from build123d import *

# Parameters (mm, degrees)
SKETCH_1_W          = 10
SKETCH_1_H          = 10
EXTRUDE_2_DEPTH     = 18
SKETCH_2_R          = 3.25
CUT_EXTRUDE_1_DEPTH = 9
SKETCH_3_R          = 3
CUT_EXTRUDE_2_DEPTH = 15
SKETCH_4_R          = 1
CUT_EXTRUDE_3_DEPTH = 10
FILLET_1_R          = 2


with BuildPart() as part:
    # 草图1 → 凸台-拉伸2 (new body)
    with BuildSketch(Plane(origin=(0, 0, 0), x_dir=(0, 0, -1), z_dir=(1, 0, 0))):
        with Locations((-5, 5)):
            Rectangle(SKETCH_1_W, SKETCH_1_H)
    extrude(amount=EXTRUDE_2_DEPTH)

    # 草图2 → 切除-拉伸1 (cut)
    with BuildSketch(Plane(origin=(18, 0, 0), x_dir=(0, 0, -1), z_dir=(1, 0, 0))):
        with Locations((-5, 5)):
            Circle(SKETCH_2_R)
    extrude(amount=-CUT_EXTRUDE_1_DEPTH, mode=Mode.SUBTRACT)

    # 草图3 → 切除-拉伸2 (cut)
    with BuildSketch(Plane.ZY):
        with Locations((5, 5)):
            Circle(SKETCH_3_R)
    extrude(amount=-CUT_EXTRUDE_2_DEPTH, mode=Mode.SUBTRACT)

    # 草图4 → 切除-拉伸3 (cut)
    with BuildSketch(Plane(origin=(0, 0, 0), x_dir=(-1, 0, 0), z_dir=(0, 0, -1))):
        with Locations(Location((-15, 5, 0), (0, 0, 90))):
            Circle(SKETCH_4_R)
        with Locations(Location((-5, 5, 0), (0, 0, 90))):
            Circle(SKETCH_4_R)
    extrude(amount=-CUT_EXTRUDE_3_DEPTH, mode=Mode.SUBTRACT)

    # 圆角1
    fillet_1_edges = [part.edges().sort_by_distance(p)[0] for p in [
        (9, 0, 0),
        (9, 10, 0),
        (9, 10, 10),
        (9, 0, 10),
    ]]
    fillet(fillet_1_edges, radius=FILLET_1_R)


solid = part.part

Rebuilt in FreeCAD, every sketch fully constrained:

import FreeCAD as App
import Part
import Sketcher
Q = App.Units.Quantity


def edges_at(feature, points):
    """Names of the edges that pass closest to the given points."""
    edges = feature.Shape.Edges
    near = lambda p: min(range(len(edges)), key=lambda i: edges[i].distToShape(Part.Vertex(*p))[0])
    return sorted({f"Edge{near(p) + 1}" for p in points})


def add_polygon(sketch, points):
    """Adds a closed chain of lines whose ends are joined by coincident constraints."""
    first, n = sketch.GeometryCount, len(points)
    for a, b in zip(points, points[1:] + points[:1]):
        sketch.addGeometry(Part.LineSegment(App.Vector(*a, 0), App.Vector(*b, 0)), False)
    for i in range(n):
        sketch.addConstraint(Sketcher.Constraint("Coincident", first + i, 2, first + (i + 1) % n, 1))

doc = App.newDocument("Part")
params = doc.addObject("Spreadsheet::Sheet", "Params")
for row, (alias, value) in enumerate([
    ("sketch1_width", "10 mm"),
    ("pad1_length", "18 mm"),
    ("sketch2_diameter", "6.5 mm"),
    ("pocket1_length", "9 mm"),
    ("sketch3_diameter", "6 mm"),
    ("pocket2_length", "15 mm"),
    ("sketch4_diameter", "2 mm"),
    ("pocket3_length", "10 mm"),
    ("fillet_radius", "2 mm"),
], start=1):
    params.set(f"A{row}", alias)
    params.set(f"B{row}", "=" + value)
    params.setAlias(f"B{row}", alias)

body = doc.addObject("PartDesign::Body", "Body")

# Sketch on YZ plane
sketch1 = body.newObject("Sketcher::SketchObject", "Sketch")
sketch1.AttachmentSupport = (doc.getObject("YZ_Plane"), [""])
sketch1.MapMode = "FlatFace"
add_polygon(sketch1, [(10, 10), (0, 10), (0, 0), (10, 0)])  # lines 0-3
sketch1.addConstraint([
    Sketcher.Constraint("Horizontal", 0),
    Sketcher.Constraint("Vertical", 1),
    Sketcher.Constraint("Horizontal", 2),
    Sketcher.Constraint("Vertical", 3),
    Sketcher.Constraint("Coincident", 1, 2, -1, 1),
    Sketcher.Constraint("Equal", 2, 1),
    Sketcher.Constraint("DistanceX", 0, 2, 0, 1, Q("10 mm")),
])
sketch1.setExpression("Constraints[10]", "Params.sketch1_width")
pad1 = body.newObject("PartDesign::Pad", "Pad")
pad1.Profile = sketch1
pad1.setExpression("Length", "Params.pad1_length")

# Sketch on YZ plane
sketch2 = body.newObject("Sketcher::SketchObject", "Sketch001")
sketch2.AttachmentSupport = (doc.getObject("YZ_Plane"), [""])
sketch2.MapMode = "FlatFace"
sketch2.AttachmentOffset = App.Placement(App.Vector(0, 0, 18), App.Rotation())
sketch2.addGeometry(Part.Circle(App.Vector(5, 5, 0), App.Vector(0, 0, 1), 3.2), False)
sketch2.addConstraint([
    Sketcher.Constraint("Diameter", 0, Q("6.5 mm")),
    Sketcher.Constraint("DistanceX", -1, 1, 0, 3, Q("5 mm")),
    Sketcher.Constraint("DistanceY", -1, 1, 0, 3, Q("5 mm")),
])
sketch2.setExpression("Constraints[0]", "Params.sketch2_diameter")
pocket1 = body.newObject("PartDesign::Pocket", "Pocket")
pocket1.Profile = sketch2
pocket1.setExpression("Length", "Params.pocket1_length")

# Sketch on YZ plane
sketch3 = body.newObject("Sketcher::SketchObject", "Sketch002")
sketch3.AttachmentSupport = (doc.getObject("YZ_Plane"), [""])
sketch3.MapMode = "FlatFace"
sketch3.addGeometry(Part.Circle(App.Vector(5, 5, 0), App.Vector(0, 0, 1), 3), False)
sketch3.addConstraint([
    Sketcher.Constraint("Diameter", 0, Q("6 mm")),
    Sketcher.Constraint("DistanceX", -1, 1, 0, 3, Q("5 mm")),
    Sketcher.Constraint("DistanceY", -1, 1, 0, 3, Q("5 mm")),
])
sketch3.setExpression("Constraints[0]", "Params.sketch3_diameter")
pocket2 = body.newObject("PartDesign::Pocket", "Pocket001")
pocket2.Profile = sketch3
pocket2.setExpression("Length", "Params.pocket2_length")
pocket2.Reversed = True

# Sketch on XY plane
sketch4 = body.newObject("Sketcher::SketchObject", "Sketch003")
sketch4.AttachmentSupport = (doc.getObject("XY_Plane"), [""])
sketch4.MapMode = "FlatFace"
sketch4.addGeometry([
    Part.Circle(App.Vector(15, 5, 0), App.Vector(0, 0, 1), 1),
    Part.Circle(App.Vector(5, 5, 0), App.Vector(0, 0, 1), 1),
], False)
sketch4.addConstraint([
    Sketcher.Constraint("Equal", 0, 1),
    Sketcher.Constraint("Horizontal", 0, 3, 1, 3),
    Sketcher.Constraint("Diameter", 0, Q("2 mm")),
    Sketcher.Constraint("DistanceX", -1, 1, 0, 3, Q("15 mm")),
    Sketcher.Constraint("DistanceY", -1, 1, 0, 3, Q("5 mm")),
    Sketcher.Constraint("DistanceX", -1, 1, 1, 3, Q("5 mm")),
])
sketch4.setExpression("Constraints[2]", "Params.sketch4_diameter")
pocket3 = body.newObject("PartDesign::Pocket", "Pocket002")
pocket3.Profile = sketch4
pocket3.setExpression("Length", "Params.pocket3_length")
pocket3.Reversed = True
doc.recompute()

fillet = body.newObject("PartDesign::Fillet", "Fillet")
fillet.Base = (pocket3, edges_at(pocket3, [
    (9, 0, 0),
    (9, 10, 0),
    (9, 10, 10),
    (9, 0, 10),
]))
fillet.setExpression("Radius", "Params.fillet_radius")

doc.recompute()
